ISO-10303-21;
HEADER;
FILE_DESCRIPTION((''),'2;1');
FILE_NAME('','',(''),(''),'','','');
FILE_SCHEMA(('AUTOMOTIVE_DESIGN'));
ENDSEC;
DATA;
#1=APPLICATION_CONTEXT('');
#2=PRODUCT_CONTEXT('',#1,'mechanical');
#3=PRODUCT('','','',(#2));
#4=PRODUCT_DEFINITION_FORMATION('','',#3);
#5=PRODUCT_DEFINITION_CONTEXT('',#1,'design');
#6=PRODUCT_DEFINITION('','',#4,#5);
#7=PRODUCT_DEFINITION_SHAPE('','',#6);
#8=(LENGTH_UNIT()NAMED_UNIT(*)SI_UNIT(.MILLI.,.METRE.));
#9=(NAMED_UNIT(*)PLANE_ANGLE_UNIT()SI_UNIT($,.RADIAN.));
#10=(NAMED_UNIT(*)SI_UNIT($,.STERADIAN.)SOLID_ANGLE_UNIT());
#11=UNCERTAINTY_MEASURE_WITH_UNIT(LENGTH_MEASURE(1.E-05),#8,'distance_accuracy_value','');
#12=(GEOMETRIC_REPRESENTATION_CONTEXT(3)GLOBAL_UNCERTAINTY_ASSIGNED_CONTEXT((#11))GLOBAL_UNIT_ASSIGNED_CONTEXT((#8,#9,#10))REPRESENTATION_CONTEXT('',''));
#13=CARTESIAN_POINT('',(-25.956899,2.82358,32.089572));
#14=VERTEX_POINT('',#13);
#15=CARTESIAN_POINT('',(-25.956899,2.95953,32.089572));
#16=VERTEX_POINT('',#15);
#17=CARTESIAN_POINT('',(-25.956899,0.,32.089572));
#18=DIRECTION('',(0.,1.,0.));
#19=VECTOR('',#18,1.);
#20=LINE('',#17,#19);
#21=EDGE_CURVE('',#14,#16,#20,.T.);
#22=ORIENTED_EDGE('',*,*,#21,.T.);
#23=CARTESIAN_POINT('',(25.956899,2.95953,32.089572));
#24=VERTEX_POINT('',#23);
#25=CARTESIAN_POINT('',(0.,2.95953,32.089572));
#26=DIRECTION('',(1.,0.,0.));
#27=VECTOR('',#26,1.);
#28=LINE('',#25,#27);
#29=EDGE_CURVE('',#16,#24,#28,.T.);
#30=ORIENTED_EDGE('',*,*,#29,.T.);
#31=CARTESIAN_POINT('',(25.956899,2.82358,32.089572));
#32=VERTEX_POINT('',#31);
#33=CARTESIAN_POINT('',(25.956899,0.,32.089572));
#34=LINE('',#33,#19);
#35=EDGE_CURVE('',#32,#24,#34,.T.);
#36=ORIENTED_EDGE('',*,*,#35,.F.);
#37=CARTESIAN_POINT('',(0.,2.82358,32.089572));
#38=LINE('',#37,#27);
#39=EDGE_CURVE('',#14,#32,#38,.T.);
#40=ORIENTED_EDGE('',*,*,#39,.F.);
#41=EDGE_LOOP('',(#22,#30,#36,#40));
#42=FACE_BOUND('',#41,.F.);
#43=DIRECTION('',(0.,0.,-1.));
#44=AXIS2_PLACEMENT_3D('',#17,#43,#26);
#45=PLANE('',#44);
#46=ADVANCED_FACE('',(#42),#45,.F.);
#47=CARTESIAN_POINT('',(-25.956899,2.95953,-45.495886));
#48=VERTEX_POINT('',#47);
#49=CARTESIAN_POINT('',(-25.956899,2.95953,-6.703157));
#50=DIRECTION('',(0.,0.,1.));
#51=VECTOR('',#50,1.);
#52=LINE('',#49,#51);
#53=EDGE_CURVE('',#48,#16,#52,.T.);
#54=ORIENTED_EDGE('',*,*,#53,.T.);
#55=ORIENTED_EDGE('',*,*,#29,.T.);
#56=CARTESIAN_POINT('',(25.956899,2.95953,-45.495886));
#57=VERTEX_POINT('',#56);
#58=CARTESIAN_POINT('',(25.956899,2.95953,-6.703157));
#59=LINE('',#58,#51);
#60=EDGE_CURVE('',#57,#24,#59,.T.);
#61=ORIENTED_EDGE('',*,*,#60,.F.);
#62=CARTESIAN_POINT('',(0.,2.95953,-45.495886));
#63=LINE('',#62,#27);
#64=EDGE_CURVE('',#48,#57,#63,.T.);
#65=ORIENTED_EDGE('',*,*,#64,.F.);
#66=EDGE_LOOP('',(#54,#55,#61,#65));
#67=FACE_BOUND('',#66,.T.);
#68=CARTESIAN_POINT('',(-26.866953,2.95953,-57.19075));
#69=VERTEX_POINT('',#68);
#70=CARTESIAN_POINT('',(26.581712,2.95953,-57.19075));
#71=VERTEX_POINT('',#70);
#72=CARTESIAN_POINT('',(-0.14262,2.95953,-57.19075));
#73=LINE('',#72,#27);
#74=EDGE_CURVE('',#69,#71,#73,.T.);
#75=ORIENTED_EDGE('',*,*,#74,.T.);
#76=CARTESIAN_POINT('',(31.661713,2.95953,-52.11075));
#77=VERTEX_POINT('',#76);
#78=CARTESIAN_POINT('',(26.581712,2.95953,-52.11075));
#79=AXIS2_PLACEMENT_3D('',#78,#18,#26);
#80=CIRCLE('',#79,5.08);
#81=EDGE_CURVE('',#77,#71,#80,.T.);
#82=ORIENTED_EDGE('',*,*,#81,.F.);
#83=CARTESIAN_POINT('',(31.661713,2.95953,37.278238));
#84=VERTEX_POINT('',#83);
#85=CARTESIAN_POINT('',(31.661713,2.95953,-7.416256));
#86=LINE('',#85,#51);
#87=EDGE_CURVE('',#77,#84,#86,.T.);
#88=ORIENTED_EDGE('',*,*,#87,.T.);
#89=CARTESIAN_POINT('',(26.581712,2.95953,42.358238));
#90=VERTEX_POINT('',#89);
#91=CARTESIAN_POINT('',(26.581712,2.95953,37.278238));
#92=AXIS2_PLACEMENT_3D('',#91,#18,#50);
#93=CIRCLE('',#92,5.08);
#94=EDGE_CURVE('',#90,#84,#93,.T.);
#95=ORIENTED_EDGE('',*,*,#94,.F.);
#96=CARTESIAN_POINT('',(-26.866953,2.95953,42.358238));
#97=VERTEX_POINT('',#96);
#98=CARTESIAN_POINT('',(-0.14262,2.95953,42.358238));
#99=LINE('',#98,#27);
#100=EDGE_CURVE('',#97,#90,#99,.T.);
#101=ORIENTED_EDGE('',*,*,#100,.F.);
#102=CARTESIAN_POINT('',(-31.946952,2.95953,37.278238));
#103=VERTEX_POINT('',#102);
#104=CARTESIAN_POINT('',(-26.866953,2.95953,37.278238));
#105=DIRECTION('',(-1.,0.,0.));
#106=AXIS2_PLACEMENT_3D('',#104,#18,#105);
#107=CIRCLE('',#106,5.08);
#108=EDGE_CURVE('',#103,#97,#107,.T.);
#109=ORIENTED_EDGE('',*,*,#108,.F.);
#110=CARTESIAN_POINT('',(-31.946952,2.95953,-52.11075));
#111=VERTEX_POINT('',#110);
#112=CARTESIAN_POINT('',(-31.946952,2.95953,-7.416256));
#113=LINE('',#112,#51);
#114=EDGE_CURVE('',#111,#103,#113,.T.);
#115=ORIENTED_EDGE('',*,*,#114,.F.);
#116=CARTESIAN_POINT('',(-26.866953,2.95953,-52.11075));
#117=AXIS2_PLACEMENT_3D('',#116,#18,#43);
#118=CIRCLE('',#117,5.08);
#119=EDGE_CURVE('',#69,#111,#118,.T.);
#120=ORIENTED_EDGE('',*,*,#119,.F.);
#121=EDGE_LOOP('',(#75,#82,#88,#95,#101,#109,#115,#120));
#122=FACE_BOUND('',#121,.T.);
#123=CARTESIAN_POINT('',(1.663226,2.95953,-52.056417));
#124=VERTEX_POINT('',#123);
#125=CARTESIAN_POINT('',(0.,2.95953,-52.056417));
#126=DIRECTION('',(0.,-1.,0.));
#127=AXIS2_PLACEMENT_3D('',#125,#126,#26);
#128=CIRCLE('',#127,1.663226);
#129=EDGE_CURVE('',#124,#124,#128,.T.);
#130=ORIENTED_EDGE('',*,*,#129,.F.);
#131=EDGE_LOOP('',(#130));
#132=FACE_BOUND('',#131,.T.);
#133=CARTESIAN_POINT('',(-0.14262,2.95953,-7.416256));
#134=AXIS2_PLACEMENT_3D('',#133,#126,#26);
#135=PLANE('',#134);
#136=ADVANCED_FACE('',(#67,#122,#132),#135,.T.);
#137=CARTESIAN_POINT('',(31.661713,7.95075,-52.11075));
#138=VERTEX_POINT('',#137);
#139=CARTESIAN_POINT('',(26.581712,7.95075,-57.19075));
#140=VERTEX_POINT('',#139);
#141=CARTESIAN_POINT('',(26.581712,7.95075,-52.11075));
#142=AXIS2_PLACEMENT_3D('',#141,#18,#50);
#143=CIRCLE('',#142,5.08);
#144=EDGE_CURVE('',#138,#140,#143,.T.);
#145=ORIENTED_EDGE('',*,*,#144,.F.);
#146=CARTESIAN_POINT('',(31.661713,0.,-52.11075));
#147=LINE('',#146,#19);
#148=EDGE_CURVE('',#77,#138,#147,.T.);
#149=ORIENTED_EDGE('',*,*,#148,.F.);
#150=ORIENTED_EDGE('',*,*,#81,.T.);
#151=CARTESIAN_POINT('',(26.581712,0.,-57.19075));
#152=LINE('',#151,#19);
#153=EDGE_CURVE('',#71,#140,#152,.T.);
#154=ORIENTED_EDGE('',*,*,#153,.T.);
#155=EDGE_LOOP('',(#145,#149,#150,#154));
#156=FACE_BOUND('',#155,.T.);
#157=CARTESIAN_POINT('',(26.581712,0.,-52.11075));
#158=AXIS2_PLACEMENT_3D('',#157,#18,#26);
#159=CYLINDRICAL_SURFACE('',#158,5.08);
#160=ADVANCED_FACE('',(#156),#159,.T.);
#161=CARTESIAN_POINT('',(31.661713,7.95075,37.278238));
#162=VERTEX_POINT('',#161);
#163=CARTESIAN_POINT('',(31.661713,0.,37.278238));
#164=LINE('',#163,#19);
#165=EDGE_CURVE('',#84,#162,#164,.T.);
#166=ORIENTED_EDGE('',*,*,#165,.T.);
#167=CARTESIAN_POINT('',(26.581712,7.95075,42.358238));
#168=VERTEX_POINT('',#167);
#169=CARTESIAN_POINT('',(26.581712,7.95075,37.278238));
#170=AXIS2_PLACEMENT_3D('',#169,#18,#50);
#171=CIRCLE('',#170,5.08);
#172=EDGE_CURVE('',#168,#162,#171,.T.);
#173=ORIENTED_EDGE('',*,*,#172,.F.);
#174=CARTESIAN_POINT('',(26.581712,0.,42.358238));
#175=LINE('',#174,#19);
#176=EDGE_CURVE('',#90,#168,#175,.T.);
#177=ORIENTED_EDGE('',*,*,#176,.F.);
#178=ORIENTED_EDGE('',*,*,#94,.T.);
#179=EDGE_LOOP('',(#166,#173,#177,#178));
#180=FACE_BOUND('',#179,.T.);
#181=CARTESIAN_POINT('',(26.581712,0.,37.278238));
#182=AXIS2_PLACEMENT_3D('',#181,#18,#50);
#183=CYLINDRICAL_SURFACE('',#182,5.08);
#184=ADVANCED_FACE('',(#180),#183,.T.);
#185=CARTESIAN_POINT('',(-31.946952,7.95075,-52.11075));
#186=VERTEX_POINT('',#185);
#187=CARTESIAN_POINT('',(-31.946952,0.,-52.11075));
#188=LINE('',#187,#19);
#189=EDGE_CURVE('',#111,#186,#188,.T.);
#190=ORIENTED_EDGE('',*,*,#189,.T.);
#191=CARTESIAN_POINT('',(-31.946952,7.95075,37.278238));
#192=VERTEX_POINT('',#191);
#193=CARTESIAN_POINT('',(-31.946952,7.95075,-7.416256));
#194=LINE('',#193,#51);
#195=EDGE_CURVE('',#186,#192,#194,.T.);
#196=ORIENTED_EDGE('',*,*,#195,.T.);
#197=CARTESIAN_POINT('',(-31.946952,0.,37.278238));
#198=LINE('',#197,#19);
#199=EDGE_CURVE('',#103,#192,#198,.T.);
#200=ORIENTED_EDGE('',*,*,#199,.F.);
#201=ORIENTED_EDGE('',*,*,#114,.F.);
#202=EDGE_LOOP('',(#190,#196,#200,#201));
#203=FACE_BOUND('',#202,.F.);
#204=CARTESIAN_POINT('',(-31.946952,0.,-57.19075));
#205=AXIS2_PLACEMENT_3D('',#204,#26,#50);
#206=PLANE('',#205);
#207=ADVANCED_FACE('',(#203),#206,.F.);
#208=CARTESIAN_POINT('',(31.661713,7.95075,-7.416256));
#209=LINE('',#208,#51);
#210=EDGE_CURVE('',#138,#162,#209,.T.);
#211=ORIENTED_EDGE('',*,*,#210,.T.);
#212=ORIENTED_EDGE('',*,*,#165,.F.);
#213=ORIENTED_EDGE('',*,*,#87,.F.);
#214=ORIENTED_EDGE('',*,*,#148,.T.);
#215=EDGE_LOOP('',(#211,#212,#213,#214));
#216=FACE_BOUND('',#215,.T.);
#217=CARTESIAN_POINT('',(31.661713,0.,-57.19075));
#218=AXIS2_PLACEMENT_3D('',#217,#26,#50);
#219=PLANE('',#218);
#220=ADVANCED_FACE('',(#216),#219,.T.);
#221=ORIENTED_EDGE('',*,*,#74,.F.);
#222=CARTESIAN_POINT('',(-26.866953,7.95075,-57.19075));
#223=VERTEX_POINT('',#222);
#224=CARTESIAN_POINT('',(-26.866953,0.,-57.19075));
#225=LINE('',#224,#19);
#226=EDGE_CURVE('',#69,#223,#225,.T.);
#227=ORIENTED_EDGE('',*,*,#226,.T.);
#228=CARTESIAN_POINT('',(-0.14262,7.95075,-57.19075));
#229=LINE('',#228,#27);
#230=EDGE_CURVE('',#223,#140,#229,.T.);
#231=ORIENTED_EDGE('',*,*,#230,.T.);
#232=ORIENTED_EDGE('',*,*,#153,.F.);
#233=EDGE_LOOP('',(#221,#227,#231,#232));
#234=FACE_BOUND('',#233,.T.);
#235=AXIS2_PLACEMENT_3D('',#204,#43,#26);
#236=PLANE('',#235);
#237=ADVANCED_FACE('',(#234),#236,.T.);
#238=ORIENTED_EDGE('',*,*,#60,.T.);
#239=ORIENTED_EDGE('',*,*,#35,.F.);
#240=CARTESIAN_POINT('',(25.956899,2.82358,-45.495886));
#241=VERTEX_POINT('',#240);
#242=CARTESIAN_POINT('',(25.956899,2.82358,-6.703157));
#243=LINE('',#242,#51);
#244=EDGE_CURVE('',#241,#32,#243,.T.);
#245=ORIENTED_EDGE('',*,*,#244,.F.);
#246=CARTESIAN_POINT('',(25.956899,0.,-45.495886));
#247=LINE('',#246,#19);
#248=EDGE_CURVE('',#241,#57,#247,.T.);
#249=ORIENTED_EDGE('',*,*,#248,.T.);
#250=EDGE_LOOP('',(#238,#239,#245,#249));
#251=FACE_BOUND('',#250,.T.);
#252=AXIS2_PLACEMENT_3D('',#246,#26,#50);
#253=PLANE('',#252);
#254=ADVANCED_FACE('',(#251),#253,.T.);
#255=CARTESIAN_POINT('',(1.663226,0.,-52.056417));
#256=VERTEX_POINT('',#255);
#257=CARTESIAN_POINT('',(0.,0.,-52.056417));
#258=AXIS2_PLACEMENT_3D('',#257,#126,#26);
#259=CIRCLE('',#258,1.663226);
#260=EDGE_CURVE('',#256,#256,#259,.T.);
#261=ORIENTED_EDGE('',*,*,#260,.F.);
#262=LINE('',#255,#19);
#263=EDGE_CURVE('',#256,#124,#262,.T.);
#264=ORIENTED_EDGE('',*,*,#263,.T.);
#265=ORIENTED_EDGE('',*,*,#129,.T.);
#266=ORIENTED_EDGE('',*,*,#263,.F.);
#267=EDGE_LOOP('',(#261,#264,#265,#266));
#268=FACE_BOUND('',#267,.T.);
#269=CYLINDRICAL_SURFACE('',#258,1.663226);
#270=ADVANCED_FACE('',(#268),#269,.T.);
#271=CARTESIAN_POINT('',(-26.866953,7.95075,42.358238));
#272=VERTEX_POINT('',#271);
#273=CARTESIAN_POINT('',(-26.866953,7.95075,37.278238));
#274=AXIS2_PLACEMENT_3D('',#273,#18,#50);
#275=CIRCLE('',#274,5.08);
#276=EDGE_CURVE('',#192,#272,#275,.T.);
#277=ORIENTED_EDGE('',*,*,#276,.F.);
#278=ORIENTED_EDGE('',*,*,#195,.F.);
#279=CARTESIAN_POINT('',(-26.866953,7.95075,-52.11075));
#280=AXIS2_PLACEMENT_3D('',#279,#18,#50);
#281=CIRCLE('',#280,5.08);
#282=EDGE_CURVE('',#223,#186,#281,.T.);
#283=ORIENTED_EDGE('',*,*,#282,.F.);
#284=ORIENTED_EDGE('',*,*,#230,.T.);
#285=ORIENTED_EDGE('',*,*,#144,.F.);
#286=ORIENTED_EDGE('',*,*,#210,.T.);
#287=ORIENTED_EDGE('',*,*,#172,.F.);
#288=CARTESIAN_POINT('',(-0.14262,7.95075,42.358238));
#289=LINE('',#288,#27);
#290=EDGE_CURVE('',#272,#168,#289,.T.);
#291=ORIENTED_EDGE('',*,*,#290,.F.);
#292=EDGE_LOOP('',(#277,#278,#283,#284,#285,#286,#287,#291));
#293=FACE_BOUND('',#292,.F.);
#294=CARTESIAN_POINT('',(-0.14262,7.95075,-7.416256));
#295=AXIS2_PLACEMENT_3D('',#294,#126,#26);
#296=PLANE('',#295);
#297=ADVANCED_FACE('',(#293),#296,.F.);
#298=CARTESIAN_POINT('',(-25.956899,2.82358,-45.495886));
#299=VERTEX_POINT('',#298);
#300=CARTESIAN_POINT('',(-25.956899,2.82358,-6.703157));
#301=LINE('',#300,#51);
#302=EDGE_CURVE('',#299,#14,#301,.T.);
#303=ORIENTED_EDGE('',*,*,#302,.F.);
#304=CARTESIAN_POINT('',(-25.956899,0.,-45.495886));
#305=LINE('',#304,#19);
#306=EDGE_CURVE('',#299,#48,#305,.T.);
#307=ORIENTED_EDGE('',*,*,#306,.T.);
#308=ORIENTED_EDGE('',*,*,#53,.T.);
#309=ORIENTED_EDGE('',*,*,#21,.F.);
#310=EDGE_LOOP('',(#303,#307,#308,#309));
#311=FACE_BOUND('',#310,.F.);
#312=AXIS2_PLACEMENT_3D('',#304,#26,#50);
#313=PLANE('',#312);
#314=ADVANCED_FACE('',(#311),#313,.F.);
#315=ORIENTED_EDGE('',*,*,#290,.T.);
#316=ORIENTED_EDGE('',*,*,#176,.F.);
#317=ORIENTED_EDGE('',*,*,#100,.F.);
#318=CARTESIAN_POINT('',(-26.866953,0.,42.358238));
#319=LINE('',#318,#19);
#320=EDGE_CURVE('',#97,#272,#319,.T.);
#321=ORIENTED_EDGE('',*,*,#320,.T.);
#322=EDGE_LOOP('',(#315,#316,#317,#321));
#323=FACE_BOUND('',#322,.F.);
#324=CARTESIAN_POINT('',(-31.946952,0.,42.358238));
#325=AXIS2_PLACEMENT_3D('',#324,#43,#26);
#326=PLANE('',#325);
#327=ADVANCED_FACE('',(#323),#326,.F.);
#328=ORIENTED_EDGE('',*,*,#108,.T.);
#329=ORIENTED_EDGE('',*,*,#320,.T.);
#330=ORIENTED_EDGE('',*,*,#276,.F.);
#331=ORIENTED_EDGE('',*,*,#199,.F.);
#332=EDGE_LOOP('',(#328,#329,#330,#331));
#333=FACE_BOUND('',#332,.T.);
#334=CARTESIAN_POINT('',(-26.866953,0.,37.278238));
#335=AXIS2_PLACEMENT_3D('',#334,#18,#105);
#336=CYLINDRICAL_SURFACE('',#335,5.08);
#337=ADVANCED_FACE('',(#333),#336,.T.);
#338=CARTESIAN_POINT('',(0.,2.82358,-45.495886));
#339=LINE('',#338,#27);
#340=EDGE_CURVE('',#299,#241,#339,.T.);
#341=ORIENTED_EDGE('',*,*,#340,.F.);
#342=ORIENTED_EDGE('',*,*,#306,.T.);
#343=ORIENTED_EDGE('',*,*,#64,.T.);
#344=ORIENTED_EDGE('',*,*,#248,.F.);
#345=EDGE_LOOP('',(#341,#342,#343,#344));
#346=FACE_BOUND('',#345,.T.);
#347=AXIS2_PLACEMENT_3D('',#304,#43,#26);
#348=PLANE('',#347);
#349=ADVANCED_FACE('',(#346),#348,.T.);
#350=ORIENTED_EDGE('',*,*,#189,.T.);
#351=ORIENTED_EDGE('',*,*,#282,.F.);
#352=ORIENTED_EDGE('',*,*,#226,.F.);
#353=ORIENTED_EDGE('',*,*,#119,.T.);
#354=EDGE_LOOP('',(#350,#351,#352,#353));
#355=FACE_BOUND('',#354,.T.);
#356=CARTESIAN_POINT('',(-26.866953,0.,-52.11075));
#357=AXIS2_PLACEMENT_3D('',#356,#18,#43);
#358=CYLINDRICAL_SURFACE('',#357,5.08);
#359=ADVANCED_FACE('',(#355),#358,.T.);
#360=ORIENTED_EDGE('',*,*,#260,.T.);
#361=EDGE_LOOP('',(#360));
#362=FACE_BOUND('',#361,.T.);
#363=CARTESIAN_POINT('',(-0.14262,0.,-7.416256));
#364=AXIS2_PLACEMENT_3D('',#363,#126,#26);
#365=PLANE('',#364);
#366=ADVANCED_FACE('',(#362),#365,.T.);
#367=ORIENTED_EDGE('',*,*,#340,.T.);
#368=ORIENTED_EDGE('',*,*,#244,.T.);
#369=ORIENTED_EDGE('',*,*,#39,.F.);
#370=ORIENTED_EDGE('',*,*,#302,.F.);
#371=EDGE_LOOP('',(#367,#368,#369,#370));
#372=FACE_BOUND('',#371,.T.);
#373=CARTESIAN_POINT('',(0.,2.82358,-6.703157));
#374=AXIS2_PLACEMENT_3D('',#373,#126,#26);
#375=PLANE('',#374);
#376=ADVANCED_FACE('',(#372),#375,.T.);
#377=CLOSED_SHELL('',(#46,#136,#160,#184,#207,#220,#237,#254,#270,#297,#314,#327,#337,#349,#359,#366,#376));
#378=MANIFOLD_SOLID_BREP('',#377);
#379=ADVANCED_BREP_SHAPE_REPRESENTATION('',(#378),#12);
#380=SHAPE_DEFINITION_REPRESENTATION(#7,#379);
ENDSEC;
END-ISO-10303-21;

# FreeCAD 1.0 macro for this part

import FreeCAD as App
import Part
import Sketcher

V = App.Vector
Q = App.Units.Quantity


def edges_at(feature, points):
    """Names of the edges that pass closest to the given points."""
    edges = feature.Shape.Edges
    near = lambda p: min(range(len(edges)), key=lambda i: edges[i].distToShape(Part.Vertex(*p))[0])
    return sorted({f"Edge{near(p) + 1}" for p in points})


def add_polygon(sketch, points):
    """Adds a closed chain of lines whose ends are joined by coincident constraints."""
    first, n = sketch.GeometryCount, len(points)
    for a, b in zip(points, points[1:] + points[:1]):
        sketch.addGeometry(Part.LineSegment(App.Vector(*a, 0), App.Vector(*b, 0)), False)
    for i in range(n):
        sketch.addConstraint(Sketcher.Constraint("Coincident", first + i, 2, first + (i + 1) % n, 1))

doc = App.newDocument("Part")
body = doc.addObject("PartDesign::Body", "Body")

sketch1 = body.newObject("Sketcher::SketchObject", "Sketch")
sketch1.AttachmentSupport = (doc.getObject("XZ_Plane"), [""])
sketch1.MapMode = "FlatFace"
add_polygon(sketch1, [(-32, 42), (-32, -57), (32, -57), (32, 42)])
sketch1.addConstraint([
    Sketcher.Constraint("Vertical", 0),
    Sketcher.Constraint("Horizontal", 1),
    Sketcher.Constraint("Vertical", 2),
    Sketcher.Constraint("Horizontal", 3),
    Sketcher.Constraint("DistanceY", 0, 2, 0, 1, 99.548988),
    Sketcher.Constraint("DistanceX", 1, 1, 1, 2, 63.608665),
    Sketcher.Constraint("DistanceY", 0, 2, -1, 1, 57.19075),
    Sketcher.Constraint("DistanceX", 0, 2, -1, 1, 31.946952),
])
pad1 = body.newObject("PartDesign::Pad", "Pad")
pad1.Profile = sketch1
pad1.Length = 7.95075
pad1.Reversed = True
doc.recompute()

fillet = body.newObject("PartDesign::Fillet", "Fillet")
fillet.Base = (pad1, edges_at(pad1, [(-31.947, 3.975, 42.358)]))
fillet.Radius = Q("0.2 in")
doc.recompute()

fillet2 = body.newObject("PartDesign::Fillet", "Fillet001")
fillet2.Base = (fillet, edges_at(fillet, [(31.662, 3.975, 42.358)]))
fillet2.Radius = Q("0.2 in")
doc.recompute()

fillet3 = body.newObject("PartDesign::Fillet", "Fillet002")
fillet3.Base = (fillet2, edges_at(fillet2, [(31.662, 3.975, -57.191)]))
fillet3.Radius = Q("0.2 in")
doc.recompute()

fillet4 = body.newObject("PartDesign::Fillet", "Fillet003")
fillet4.Base = (fillet3, edges_at(fillet3, [(-31.947, 3.975, -57.191)]))
fillet4.Radius = Q("0.2 in")

sketch2 = body.newObject("Sketcher::SketchObject", "Sketch001")
sketch2.AttachmentSupport = (doc.getObject("XZ_Plane"), [""])
sketch2.MapMode = "FlatFace"
add_polygon(sketch2, [(-31.9, 42.4), (-31.9, -57.2), (31.7, -57.2), (31.7, 42.4)])
sketch2.addGeometry(Part.Circle(V(0, -52.1, 0), V(0, 0, 1), 1.7), False)
add_polygon(sketch2, [(26, -45.5), (-26, -45.5), (-26, 32.1), (26, 32.1)])
sketch2.addConstraint([
    Sketcher.Constraint("Vertical", 0),
    Sketcher.Constraint("Horizontal", 1),
    Sketcher.Constraint("Vertical", 2),
    Sketcher.Constraint("Horizontal", 3),
    Sketcher.Constraint("Horizontal", 5),
    Sketcher.Constraint("Vertical", 6),
    Sketcher.Constraint("Horizontal", 7),
    Sketcher.Constraint("Vertical", 8),
    Sketcher.Constraint("PointOnObject", 4, 3, -2),
    Sketcher.Constraint("Diameter", 4, 3.326452),
    Sketcher.Constraint("DistanceY", 0, 2, 0, 1, 99.548988),
    Sketcher.Constraint("DistanceX", 5, 2, -1, 1, 25.956899),
    Sketcher.Constraint("DistanceX", -1, 1, 7, 2, 25.956899),
    Sketcher.Constraint("DistanceX", 1, 1, 1, 2, 63.608665),
    Sketcher.Constraint("DistanceY", 6, 1, 6, 2, 77.585458),
    Sketcher.Constraint("DistanceY", 0, 2, -1, 1, 57.19075),
    Sketcher.Constraint("DistanceY", -1, 1, 6, 2, 32.089572),
    Sketcher.Constraint("DistanceY", 4, 3, 5, 2, 6.560531),
    Sketcher.Constraint("DistanceX", 5, 2, 1, 2, 57.618612),
])
pocket1 = body.newObject("PartDesign::Pocket", "Pocket")
pocket1.Profile = sketch2
pocket1.Length = 2.95953

sketch3 = body.newObject("Sketcher::SketchObject", "Sketch002")
sketch3.AttachmentSupport = (doc.getObject("XZ_Plane"), [""])
sketch3.MapMode = "FlatFace"
add_polygon(sketch3, [(-26, 32), (-26, -45), (26, -45), (26, 32)])
sketch3.addConstraint([
    Sketcher.Constraint("Vertical", 0),
    Sketcher.Constraint("Horizontal", 1),
    Sketcher.Constraint("Vertical", 2),
    Sketcher.Constraint("Horizontal", 3),
    Sketcher.Constraint("DistanceX", 0, 2, -1, 1, 25.956899),
    Sketcher.Constraint("DistanceX", -1, 1, 1, 2, 25.956899),
    Sketcher.Constraint("DistanceY", 0, 2, 0, 1, 77.585458),
    Sketcher.Constraint("DistanceY", -1, 1, 2, 2, 32.089572),
])
pocket2 = body.newObject("PartDesign::Pocket", "Pocket001")
pocket2.Profile = sketch3
pocket2.Length = 2.82358

doc.recompute()
